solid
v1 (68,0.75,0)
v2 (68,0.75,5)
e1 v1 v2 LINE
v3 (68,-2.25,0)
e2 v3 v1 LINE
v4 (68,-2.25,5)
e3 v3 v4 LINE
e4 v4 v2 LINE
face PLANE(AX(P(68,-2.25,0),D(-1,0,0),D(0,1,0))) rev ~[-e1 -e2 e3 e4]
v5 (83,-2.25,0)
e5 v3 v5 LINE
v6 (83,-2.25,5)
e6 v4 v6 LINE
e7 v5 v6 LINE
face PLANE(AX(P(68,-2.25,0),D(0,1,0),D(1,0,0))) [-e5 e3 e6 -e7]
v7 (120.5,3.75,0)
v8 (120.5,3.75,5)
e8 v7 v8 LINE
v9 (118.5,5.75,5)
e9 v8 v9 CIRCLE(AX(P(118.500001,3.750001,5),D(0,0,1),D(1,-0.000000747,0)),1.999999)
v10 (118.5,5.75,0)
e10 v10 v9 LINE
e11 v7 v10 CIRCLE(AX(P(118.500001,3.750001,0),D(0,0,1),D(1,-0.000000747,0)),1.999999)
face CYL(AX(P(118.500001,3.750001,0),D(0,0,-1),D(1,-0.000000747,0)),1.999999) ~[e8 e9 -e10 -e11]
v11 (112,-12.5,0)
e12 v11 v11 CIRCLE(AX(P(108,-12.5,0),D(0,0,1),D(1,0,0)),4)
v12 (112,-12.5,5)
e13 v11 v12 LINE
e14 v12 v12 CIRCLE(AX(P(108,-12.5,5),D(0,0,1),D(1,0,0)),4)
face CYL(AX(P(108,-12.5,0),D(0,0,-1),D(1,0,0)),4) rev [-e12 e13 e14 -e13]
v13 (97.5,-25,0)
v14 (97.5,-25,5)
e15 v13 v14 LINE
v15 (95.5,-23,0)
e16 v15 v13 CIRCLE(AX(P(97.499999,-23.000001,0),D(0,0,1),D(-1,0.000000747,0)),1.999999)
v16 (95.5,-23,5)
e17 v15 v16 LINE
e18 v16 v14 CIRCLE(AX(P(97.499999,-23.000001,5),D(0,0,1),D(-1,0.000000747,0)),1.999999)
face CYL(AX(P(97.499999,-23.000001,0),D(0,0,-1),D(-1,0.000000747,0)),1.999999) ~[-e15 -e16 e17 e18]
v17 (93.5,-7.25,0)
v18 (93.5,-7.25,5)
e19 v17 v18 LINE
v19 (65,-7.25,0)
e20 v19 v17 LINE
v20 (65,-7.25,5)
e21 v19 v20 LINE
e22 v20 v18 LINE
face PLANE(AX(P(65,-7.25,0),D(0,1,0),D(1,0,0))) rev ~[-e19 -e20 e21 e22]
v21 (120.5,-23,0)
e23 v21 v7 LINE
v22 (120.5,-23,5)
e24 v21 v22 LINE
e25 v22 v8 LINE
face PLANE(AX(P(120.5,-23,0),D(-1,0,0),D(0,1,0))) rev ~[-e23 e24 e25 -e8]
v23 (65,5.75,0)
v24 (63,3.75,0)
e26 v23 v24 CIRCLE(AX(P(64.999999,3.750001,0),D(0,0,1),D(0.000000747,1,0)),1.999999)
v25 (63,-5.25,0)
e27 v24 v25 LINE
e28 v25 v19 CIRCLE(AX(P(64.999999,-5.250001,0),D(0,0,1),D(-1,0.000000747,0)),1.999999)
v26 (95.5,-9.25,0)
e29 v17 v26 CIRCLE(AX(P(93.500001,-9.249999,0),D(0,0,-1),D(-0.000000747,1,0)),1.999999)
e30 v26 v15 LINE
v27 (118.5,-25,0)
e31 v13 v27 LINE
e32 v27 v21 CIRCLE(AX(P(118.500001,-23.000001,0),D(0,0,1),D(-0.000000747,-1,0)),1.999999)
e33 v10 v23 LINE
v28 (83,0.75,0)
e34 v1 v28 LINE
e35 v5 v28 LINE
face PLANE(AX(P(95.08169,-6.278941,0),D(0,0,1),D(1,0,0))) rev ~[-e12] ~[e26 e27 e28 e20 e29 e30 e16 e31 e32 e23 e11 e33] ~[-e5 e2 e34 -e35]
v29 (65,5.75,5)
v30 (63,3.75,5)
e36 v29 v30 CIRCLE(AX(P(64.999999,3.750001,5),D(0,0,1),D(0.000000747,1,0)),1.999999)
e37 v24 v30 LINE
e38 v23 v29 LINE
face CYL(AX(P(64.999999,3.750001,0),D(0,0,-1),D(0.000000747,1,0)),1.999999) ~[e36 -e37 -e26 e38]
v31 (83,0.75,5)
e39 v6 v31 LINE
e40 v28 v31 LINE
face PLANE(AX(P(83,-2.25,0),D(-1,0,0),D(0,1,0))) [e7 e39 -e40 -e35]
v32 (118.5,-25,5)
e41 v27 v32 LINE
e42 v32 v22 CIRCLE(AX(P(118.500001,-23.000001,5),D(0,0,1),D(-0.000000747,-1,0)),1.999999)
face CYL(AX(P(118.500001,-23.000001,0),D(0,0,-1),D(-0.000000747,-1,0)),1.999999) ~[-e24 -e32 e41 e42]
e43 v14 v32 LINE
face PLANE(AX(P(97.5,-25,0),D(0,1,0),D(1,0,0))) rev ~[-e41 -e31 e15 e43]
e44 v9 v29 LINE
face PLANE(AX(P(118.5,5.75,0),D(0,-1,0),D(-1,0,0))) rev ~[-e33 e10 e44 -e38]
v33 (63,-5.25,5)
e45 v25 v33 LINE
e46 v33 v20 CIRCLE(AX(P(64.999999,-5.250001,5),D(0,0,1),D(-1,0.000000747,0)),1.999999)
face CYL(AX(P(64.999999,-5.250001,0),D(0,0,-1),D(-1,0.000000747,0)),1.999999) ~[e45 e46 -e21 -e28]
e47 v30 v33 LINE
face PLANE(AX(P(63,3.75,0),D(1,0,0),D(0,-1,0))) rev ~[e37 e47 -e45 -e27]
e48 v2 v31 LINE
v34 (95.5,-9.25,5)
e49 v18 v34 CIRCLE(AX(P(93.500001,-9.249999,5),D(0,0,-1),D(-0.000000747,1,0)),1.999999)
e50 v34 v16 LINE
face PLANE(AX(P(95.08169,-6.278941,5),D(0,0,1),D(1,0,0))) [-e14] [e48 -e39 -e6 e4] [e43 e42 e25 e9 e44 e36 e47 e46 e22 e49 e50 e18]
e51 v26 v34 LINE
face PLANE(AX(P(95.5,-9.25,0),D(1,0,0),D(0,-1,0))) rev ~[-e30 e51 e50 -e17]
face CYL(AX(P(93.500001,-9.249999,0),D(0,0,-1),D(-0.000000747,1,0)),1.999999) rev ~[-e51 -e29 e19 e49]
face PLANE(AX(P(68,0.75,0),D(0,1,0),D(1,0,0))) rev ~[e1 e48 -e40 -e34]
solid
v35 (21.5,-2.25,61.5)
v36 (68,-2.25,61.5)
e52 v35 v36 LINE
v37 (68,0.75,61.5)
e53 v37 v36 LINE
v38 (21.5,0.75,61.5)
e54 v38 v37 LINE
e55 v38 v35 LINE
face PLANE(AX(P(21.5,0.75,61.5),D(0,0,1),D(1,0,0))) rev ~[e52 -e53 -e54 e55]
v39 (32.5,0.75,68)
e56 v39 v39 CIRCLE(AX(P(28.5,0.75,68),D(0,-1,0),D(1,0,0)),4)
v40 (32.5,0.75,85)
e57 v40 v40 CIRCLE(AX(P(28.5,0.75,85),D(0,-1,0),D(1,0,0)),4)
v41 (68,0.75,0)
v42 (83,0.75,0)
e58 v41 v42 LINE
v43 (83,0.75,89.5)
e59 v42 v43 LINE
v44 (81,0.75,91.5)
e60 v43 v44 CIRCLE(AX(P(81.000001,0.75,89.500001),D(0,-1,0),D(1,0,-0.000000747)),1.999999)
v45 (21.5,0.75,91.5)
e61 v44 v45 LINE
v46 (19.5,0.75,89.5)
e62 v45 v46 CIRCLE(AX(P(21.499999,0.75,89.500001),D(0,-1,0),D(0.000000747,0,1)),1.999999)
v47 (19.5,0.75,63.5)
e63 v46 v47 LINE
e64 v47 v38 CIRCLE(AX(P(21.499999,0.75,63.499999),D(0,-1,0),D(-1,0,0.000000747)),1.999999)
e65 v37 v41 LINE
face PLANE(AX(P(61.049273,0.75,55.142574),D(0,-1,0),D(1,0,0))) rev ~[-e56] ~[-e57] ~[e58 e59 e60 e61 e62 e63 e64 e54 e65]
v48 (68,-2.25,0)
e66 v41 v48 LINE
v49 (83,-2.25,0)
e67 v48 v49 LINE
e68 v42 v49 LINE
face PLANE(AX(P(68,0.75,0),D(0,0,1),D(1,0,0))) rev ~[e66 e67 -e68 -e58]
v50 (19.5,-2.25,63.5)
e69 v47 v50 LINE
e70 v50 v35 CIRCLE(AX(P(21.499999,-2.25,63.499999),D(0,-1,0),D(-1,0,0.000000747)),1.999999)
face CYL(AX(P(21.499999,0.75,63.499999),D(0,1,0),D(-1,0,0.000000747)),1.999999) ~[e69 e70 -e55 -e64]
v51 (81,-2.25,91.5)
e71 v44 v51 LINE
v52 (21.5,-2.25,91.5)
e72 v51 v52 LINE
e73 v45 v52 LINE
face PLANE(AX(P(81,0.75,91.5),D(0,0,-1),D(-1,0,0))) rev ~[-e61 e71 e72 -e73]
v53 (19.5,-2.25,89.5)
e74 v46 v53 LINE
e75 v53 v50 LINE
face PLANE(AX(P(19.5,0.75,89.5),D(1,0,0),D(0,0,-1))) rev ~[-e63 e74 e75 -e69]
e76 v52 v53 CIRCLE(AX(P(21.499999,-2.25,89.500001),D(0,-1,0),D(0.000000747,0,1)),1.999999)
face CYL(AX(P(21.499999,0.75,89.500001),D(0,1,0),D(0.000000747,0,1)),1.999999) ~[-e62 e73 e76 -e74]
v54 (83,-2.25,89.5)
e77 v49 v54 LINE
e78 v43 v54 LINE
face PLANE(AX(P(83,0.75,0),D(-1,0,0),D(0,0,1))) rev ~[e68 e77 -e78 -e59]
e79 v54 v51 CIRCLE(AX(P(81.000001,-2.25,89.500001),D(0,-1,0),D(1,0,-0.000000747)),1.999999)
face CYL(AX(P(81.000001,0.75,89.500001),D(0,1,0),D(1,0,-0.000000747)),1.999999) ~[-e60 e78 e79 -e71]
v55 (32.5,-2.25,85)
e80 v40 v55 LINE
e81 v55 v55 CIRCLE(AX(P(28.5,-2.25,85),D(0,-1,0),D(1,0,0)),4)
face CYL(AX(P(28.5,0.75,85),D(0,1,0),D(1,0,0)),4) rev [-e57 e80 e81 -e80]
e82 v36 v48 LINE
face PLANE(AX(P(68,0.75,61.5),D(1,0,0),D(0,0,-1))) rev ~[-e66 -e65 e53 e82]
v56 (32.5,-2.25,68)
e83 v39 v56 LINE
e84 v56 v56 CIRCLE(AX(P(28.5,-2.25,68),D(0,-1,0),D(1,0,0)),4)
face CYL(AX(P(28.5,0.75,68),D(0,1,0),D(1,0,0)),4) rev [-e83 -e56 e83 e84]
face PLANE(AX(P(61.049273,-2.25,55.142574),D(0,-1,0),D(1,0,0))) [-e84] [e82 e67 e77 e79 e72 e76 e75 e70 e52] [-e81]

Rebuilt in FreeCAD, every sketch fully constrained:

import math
import FreeCAD as App
import Part
import Sketcher

V = App.Vector


def add_polygon(sketch, points):
    """Adds a closed chain of lines whose ends are joined by coincident constraints."""
    first, n = sketch.GeometryCount, len(points)
    for a, b in zip(points, points[1:] + points[:1]):
        sketch.addGeometry(Part.LineSegment(App.Vector(*a, 0), App.Vector(*b, 0)), False)
    for i in range(n):
        sketch.addConstraint(Sketcher.Constraint("Coincident", first + i, 2, first + (i + 1) % n, 1))

doc = App.newDocument("Part")
body = doc.addObject("PartDesign::Body", "Body")

sketch1 = body.newObject("Sketcher::SketchObject", "Sketch")
sketch1.AttachmentSupport = (doc.getObject("XY_Plane"), [""])
sketch1.MapMode = "FlatFace"
sketch1.addGeometry(Part.ArcOfCircle(Part.Circle(V(97.5, -23, 0), V(0, 0, 1), 2), math.radians(180), math.radians(270)), False)
sketch1.addGeometry(Part.LineSegment(V(97.5, -25, 0), V(118.5, -25, 0)), False)
sketch1.addGeometry(Part.ArcOfCircle(Part.Circle(V(118.5, -23, 0), V(0, 0, 1), 2), math.radians(-90), math.radians(0)), False)
sketch1.addGeometry(Part.LineSegment(V(120.5, -23, 0), V(120.5, 3.8, 0)), False)
sketch1.addGeometry(Part.ArcOfCircle(Part.Circle(V(118.5, 3.8, 0), V(0, 0, 1), 2), math.radians(0), math.radians(90)), False)
sketch1.addGeometry(Part.LineSegment(V(118.5, 5.8, 0), V(65, 5.8, 0)), False)
sketch1.addGeometry(Part.ArcOfCircle(Part.Circle(V(65, 3.8, 0), V(0, 0, 1), 2), math.radians(90), math.radians(180)), False)
sketch1.addGeometry(Part.LineSegment(V(63, 3.8, 0), V(63, -5.2, 0)), False)
sketch1.addGeometry(Part.ArcOfCircle(Part.Circle(V(65, -5.3, 0), V(0, 0, 1), 2), math.radians(180), math.radians(270)), False)
sketch1.addGeometry(Part.LineSegment(V(65, -7.2, 0), V(93.5, -7.2, 0)), False)
sketch1.addGeometry(Part.ArcOfCircle(Part.Circle(V(93.5, -9.2, 0), V(0, 0, 1), 2), math.radians(0), math.radians(90)), False)
sketch1.addGeometry(Part.LineSegment(V(95.5, -9.2, 0), V(95.5, -23, 0)), False)
sketch1.addGeometry(Part.Circle(V(108, -12.5, 0), V(0, 0, 1), 4), False)
add_polygon(sketch1, [(83, -2.2), (68, -2.2), (68, 0.8), (83, 0.8)])
sketch1.addConstraint([
    Sketcher.Constraint("Tangent", 0, 2, 1, 1),
    Sketcher.Constraint("Tangent", 1, 2, 2, 1),
    Sketcher.Constraint("Tangent", 2, 2, 3, 1),
    Sketcher.Constraint("Tangent", 3, 2, 4, 1),
    Sketcher.Constraint("Tangent", 4, 2, 5, 1),
    Sketcher.Constraint("Tangent", 5, 2, 6, 1),
    Sketcher.Constraint("Tangent", 6, 2, 7, 1),
    Sketcher.Constraint("Tangent", 7, 2, 8, 1),
    Sketcher.Constraint("Tangent", 8, 2, 9, 1),
    Sketcher.Constraint("Tangent", 9, 2, 10, 2),
    Sketcher.Constraint("Tangent", 10, 1, 11, 1),
    Sketcher.Constraint("Tangent", 11, 2, 0, 1),
    Sketcher.Constraint("Horizontal", 1),
    Sketcher.Constraint("Vertical", 3),
    Sketcher.Constraint("Horizontal", 5),
    Sketcher.Constraint("Vertical", 7),
    Sketcher.Constraint("Horizontal", 9),
    Sketcher.Constraint("Vertical", 11),
    Sketcher.Constraint("Horizontal", 13),
    Sketcher.Constraint("Vertical", 14),
    Sketcher.Constraint("Horizontal", 15),
    Sketcher.Constraint("Vertical", 16),
    Sketcher.Constraint("Equal", 0, 2),
    Sketcher.Constraint("Equal", 2, 4),
    Sketcher.Constraint("Equal", 4, 6),
    Sketcher.Constraint("Equal", 6, 8),
    Sketcher.Constraint("Equal", 8, 10),
    Sketcher.Constraint("Diameter", 12, 8.0),
    Sketcher.Constraint("Radius", 0, 1.999999),
    Sketcher.Constraint("DistanceX", 1, 1, 1, 2, 21.0),
    Sketcher.Constraint("DistanceX", 13, 2, 13, 1, 15.0),
    Sketcher.Constraint("DistanceY", 7, 2, 7, 1, 9.0),
    Sketcher.Constraint("DistanceY", 14, 1, 14, 2, 3.0),
    Sketcher.Constraint("DistanceX", 5, 2, 5, 1, 53.5),
    Sketcher.Constraint("DistanceY", 0, 3, -1, 1, 23.000001),
    Sketcher.Constraint("DistanceX", -1, 1, 6, 3, 64.999999),
    Sketcher.Constraint("DistanceX", -1, 1, 12, 3, 108.0),
    Sketcher.Constraint("DistanceX", -1, 1, 13, 2, 68.0),
    Sketcher.Constraint("DistanceY", 8, 3, 13, 2, 3.000001),
    Sketcher.Constraint("DistanceY", 3, 1, 3, 2, 26.75),
    Sketcher.Constraint("DistanceY", 12, 3, -1, 1, 12.5),
])
pad1 = body.newObject("PartDesign::Pad", "Pad")
pad1.Profile = sketch1
pad1.Length = 5
body2 = doc.addObject("PartDesign::Body", "Body001")

sketch2 = body2.newObject("Sketcher::SketchObject", "Sketch001")
sketch2.AttachmentSupport = (doc.getObject("XZ_Plane001"), [""])
sketch2.MapMode = "FlatFace"
sketch2.AttachmentOffset = App.Placement(V(0, 0, -0.75), App.Rotation())
sketch2.addGeometry([
    Part.LineSegment(V(68, 61.5, 0), V(68, 0, 0)),
    Part.LineSegment(V(68, 0, 0), V(83, 0, 0)),
    Part.LineSegment(V(83, 0, 0), V(83, 89.5, 0)),
    Part.ArcOfCircle(Part.Circle(V(81, 89.5, 0), V(0, 0, 1), 2), math.radians(0), math.radians(90)),
    Part.LineSegment(V(81, 91.5, 0), V(21.5, 91.5, 0)),
    Part.ArcOfCircle(Part.Circle(V(21.5, 89.5, 0), V(0, 0, 1), 2), math.radians(90), math.radians(180)),
    Part.LineSegment(V(19.5, 89.5, 0), V(19.5, 63.5, 0)),
    Part.ArcOfCircle(Part.Circle(V(21.5, 63.5, 0), V(0, 0, 1), 2), math.radians(180), math.radians(270)),
    Part.LineSegment(V(21.5, 61.5, 0), V(68, 61.5, 0)),
    Part.Circle(V(28.5, 68, 0), V(0, 0, 1), 4),
    Part.Circle(V(28.5, 85, 0), V(0, 0, 1), 4),
], False)
sketch2.addConstraint([
    Sketcher.Constraint("Coincident", 0, 2, 1, 1),
    Sketcher.Constraint("Coincident", 1, 2, 2, 1),
    Sketcher.Constraint("Tangent", 2, 2, 3, 1),
    Sketcher.Constraint("Tangent", 3, 2, 4, 1),
    Sketcher.Constraint("Tangent", 4, 2, 5, 1),
    Sketcher.Constraint("Tangent", 5, 2, 6, 1),
    Sketcher.Constraint("Tangent", 6, 2, 7, 1),
    Sketcher.Constraint("Tangent", 7, 2, 8, 1),
    Sketcher.Constraint("Coincident", 8, 2, 0, 1),
    Sketcher.Constraint("Vertical", 0),
    Sketcher.Constraint("Horizontal", 1),
    Sketcher.Constraint("Vertical", 2),
    Sketcher.Constraint("Horizontal", 4),
    Sketcher.Constraint("Vertical", 6),
    Sketcher.Constraint("Horizontal", 8),
    Sketcher.Constraint("Equal", 3, 5),
    Sketcher.Constraint("Equal", 5, 7),
    Sketcher.Constraint("Equal", 9, 10),
    Sketcher.Constraint("PointOnObject", 0, 2, -1),
    Sketcher.Constraint("Vertical", 9, 3, 10, 3),
    Sketcher.Constraint("Diameter", 9, 8.0),
    Sketcher.Constraint("Radius", 3, 1.999999),
    Sketcher.Constraint("DistanceX", 1, 1, 1, 2, 15.0),
    Sketcher.Constraint("DistanceY", 6, 2, 6, 1, 26.0),
    Sketcher.Constraint("DistanceX", 4, 2, 4, 1, 59.5),
    Sketcher.Constraint("DistanceY", 0, 2, 0, 1, 61.5),
    Sketcher.Constraint("DistanceX", -1, 1, 3, 3, 81.000001),
    Sketcher.Constraint("DistanceY", -1, 1, 9, 3, 68.0),
    Sketcher.Constraint("DistanceY", -1, 1, 10, 3, 85.0),
    Sketcher.Constraint("DistanceX", 7, 3, 9, 3, 7.000001),
])
pad2 = body2.newObject("PartDesign::Pad", "Pad001")
pad2.Profile = sketch2
pad2.Length = 3

doc.recompute()
